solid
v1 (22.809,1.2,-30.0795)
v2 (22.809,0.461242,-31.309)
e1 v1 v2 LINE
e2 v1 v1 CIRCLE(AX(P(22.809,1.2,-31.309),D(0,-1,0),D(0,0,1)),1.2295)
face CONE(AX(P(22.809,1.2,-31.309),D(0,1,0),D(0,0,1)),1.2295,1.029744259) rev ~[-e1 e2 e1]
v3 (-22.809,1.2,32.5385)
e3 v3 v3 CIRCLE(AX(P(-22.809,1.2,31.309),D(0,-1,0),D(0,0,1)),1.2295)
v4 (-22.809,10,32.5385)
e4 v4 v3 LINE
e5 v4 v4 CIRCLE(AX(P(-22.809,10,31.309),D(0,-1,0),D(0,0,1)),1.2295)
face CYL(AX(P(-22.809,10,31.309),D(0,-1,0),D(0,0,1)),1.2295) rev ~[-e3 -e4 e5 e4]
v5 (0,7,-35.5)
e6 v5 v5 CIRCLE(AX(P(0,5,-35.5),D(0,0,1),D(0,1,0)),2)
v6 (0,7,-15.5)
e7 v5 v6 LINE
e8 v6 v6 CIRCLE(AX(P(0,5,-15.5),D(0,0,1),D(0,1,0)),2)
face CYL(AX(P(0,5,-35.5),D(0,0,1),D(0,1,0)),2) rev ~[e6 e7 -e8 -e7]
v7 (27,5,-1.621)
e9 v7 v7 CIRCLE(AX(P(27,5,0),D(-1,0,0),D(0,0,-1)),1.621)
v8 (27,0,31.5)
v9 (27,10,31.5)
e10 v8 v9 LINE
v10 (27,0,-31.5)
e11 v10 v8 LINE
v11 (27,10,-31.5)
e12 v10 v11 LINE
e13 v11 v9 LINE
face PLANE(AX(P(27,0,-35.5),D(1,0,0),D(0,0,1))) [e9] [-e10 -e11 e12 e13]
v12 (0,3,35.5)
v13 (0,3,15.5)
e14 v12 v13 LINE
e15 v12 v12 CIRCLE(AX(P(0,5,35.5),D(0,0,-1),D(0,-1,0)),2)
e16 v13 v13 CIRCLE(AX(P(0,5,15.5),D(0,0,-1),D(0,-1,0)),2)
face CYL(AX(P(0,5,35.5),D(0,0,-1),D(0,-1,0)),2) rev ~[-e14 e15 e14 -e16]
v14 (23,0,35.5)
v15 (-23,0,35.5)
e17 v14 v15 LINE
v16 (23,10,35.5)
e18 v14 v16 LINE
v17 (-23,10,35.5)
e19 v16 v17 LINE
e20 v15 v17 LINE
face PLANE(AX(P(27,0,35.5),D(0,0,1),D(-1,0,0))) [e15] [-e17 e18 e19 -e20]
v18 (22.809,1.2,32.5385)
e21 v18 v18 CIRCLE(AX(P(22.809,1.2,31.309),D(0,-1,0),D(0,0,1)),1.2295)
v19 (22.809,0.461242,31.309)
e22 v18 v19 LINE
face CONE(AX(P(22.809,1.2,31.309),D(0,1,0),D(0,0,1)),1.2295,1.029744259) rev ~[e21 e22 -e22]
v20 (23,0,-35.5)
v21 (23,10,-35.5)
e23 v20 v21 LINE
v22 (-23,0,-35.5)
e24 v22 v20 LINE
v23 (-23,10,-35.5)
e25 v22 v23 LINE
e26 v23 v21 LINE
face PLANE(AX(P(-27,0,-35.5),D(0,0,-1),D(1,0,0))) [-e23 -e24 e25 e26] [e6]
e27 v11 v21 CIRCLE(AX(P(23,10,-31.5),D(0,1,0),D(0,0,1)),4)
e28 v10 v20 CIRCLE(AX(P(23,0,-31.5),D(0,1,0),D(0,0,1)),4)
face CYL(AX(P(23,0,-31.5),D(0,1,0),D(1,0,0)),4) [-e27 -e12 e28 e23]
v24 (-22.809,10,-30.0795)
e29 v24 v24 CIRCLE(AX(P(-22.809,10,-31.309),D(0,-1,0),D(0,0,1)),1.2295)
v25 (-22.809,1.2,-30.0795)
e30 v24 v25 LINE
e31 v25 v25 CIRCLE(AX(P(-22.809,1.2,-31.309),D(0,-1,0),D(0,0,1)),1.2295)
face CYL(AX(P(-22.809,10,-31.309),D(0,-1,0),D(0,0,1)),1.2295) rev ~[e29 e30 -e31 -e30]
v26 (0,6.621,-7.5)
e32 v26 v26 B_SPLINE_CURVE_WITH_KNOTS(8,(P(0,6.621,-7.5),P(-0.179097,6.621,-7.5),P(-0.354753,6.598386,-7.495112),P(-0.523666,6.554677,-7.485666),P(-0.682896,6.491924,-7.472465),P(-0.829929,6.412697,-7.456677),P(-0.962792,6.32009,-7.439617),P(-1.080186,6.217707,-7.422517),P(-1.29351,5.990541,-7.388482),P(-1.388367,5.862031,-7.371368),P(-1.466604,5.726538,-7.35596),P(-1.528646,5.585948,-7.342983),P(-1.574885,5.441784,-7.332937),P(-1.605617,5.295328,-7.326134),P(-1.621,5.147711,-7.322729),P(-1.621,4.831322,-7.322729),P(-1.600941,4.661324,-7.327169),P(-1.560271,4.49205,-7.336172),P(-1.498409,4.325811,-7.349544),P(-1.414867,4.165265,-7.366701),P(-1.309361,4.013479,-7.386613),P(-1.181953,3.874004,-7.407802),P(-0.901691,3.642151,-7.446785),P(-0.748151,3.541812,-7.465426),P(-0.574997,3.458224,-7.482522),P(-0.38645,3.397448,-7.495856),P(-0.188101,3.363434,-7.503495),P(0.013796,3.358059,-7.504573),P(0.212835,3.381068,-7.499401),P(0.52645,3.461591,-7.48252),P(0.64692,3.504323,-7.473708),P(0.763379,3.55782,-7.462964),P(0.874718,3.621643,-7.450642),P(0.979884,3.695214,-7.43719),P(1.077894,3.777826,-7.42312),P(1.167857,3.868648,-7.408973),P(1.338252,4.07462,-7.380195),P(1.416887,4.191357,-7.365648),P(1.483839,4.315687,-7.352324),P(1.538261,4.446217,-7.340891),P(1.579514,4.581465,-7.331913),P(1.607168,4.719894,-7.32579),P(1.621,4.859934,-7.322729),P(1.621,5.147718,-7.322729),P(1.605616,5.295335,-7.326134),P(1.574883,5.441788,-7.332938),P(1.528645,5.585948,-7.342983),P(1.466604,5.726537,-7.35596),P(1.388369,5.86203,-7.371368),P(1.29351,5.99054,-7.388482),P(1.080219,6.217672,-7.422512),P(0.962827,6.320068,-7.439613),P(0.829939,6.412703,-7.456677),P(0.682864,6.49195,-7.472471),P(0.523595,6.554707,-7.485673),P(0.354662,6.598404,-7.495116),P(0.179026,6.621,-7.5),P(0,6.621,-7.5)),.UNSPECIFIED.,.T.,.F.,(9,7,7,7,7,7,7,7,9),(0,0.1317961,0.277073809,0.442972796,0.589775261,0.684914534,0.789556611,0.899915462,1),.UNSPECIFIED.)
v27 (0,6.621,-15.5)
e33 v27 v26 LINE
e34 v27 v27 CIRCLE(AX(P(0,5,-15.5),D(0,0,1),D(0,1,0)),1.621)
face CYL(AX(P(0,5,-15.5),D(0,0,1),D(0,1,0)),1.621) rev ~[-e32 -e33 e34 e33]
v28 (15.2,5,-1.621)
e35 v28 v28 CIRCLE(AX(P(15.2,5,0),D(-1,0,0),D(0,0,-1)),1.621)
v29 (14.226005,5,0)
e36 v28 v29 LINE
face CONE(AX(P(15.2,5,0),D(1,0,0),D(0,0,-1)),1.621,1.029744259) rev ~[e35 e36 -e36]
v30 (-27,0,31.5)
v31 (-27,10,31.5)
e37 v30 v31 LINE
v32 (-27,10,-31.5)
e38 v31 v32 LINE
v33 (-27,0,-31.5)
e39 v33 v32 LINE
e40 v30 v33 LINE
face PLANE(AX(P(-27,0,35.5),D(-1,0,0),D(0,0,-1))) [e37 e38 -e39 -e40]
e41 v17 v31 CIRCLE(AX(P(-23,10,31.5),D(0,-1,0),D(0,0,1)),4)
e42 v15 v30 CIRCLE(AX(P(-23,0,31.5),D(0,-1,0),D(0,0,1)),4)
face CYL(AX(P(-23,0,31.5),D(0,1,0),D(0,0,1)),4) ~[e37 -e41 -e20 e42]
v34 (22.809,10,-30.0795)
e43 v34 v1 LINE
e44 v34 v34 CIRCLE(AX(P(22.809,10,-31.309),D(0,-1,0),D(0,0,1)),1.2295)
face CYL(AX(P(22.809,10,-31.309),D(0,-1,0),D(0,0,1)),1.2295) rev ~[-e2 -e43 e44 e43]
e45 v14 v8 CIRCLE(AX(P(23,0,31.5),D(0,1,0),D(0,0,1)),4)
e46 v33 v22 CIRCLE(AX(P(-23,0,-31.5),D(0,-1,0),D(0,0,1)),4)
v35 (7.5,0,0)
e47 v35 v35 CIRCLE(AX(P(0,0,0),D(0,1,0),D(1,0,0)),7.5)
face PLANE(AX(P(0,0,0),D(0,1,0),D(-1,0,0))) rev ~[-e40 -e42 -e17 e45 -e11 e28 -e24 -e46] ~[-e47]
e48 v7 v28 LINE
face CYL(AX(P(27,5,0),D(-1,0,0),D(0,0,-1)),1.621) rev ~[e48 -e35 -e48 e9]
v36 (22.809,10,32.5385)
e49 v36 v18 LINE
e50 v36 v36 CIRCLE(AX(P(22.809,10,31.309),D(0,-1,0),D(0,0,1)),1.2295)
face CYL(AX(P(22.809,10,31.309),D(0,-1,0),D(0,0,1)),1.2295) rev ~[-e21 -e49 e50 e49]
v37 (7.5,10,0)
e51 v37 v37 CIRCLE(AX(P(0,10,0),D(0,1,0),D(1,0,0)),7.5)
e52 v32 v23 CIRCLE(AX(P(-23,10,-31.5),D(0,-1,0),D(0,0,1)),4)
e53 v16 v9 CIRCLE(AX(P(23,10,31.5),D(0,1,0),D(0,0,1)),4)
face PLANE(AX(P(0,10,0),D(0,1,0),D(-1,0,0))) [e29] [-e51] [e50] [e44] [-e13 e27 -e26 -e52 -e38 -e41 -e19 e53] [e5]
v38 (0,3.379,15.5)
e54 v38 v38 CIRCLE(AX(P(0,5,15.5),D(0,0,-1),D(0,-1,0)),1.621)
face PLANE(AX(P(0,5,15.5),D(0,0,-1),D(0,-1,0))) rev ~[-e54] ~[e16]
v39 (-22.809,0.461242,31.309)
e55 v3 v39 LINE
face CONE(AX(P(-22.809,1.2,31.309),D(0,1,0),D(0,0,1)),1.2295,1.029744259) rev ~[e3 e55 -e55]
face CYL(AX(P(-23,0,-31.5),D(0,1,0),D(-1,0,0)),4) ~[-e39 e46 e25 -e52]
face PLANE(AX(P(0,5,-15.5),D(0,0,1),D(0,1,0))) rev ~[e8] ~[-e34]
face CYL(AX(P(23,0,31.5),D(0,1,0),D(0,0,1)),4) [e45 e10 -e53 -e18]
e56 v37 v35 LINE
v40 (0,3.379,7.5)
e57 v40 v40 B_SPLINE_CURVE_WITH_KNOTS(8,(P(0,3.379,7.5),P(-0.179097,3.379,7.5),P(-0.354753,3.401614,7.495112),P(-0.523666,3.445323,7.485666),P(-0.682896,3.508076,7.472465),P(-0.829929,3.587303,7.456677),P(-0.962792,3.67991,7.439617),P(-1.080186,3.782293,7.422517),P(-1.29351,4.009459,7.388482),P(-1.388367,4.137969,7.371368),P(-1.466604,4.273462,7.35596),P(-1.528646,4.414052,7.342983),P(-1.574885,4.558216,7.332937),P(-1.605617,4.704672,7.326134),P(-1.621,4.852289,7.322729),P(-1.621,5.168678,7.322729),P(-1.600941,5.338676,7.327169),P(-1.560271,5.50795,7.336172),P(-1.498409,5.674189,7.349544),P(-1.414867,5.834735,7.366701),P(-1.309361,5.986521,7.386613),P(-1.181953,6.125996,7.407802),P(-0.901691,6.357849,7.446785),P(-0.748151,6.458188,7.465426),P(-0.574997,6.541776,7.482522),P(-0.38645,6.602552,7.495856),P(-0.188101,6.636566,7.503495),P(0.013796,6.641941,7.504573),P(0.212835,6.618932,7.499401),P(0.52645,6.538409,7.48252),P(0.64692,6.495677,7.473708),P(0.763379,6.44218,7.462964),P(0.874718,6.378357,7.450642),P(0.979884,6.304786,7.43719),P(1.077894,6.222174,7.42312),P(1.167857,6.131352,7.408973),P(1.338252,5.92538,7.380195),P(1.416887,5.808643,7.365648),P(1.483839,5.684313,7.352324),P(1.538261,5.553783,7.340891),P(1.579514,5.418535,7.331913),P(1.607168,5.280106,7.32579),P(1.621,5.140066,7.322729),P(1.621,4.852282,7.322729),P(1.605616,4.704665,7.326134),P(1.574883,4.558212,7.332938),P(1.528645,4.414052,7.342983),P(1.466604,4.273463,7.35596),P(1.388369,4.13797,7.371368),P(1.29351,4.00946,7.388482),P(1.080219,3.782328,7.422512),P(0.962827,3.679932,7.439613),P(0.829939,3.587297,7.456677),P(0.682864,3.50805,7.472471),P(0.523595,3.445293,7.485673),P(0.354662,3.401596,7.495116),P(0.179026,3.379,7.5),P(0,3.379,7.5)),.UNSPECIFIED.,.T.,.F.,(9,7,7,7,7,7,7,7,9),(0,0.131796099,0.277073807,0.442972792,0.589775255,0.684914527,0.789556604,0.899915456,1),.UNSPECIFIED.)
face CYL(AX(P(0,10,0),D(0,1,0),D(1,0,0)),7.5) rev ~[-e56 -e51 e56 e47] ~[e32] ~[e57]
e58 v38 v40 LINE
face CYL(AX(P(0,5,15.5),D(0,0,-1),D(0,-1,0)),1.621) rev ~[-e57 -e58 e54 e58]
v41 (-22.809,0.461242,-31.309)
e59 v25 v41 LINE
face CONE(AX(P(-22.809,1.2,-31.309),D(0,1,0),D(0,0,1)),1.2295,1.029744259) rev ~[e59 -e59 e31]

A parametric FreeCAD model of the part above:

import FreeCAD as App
import Part
import Sketcher
Q = App.Units.Quantity


def edges_at(feature, points):
    """Names of the edges that pass closest to the given points."""
    edges = feature.Shape.Edges
    near = lambda p: min(range(len(edges)), key=lambda i: edges[i].distToShape(Part.Vertex(*p))[0])
    return sorted({f"Edge{near(p) + 1}" for p in points})


def add_polygon(sketch, points):
    """Adds a closed chain of lines whose ends are joined by coincident constraints."""
    first, n = sketch.GeometryCount, len(points)
    for a, b in zip(points, points[1:] + points[:1]):
        sketch.addGeometry(Part.LineSegment(App.Vector(*a, 0), App.Vector(*b, 0)), False)
    for i in range(n):
        sketch.addConstraint(Sketcher.Constraint("Coincident", first + i, 2, first + (i + 1) % n, 1))

doc = App.newDocument("Part")
body = doc.addObject("PartDesign::Body", "Body")

sketch1 = body.newObject("Sketcher::SketchObject", "Sketch")
sketch1.AttachmentSupport = (doc.getObject("XZ_Plane"), [""])
sketch1.MapMode = "FlatFace"
add_polygon(sketch1, [(-27, 35.5), (27, 35.5), (27, -35.5), (-27, -35.5)])
sketch1.addConstraint([
    Sketcher.Constraint("Horizontal", 0),
    Sketcher.Constraint("Vertical", 1),
    Sketcher.Constraint("Horizontal", 2),
    Sketcher.Constraint("Vertical", 3),
    Sketcher.Constraint("Symmetric", 0, 2, 2, 2, -1, 1),
    Sketcher.Constraint("DistanceX", 0, 1, 0, 2, Q("54 mm")),
    Sketcher.Constraint("DistanceY", 1, 2, 1, 1, Q("71 mm")),
])
pad1 = body.newObject("PartDesign::Pad", "Pad")
pad1.Profile = sketch1
pad1.Length = 10
pad1.Reversed = True

sketch2 = body.newObject("Sketcher::SketchObject", "Sketch001")
sketch2.AttachmentSupport = (doc.getObject("XZ_Plane"), [""])
sketch2.MapMode = "FlatFace"
sketch2.AttachmentOffset = App.Placement(App.Vector(0, 0, -10), App.Rotation())
sketch2.addGeometry(Part.Circle(App.Vector(0, 0, 0), App.Vector(0, 0, 1), 7.5), False)
sketch2.addConstraint([
    Sketcher.Constraint("Coincident", 0, 3, -1, 1),
    Sketcher.Constraint("Diameter", 0, Q("15 mm")),
])
pocket1 = body.newObject("PartDesign::Pocket", "Pocket")
pocket1.Profile = sketch2
pocket1.Length = 10
pocket1.Reversed = True

sketch3 = body.newObject("Sketcher::SketchObject", "Sketch002")
sketch3.AttachmentSupport = (doc.getObject("YZ_Plane"), [""])
sketch3.MapMode = "FlatFace"
sketch3.AttachmentOffset = App.Placement(App.Vector(0, 0, 27), App.Rotation())
sketch3.addGeometry(Part.Circle(App.Vector(5, 0, 0), App.Vector(0, 0, 1), 1.621), False)
sketch3.addConstraint([
    Sketcher.Constraint("PointOnObject", 0, 3, -1),
    Sketcher.Constraint("Diameter", 0, Q("3.242 mm")),
    Sketcher.Constraint("DistanceX", -1, 1, 0, 3, Q("5 mm")),
])
doc.recompute()
hole = body.newObject("PartDesign::Hole", "Hole")
hole.Profile = sketch3
hole.ThreadType = "None"
hole.Diameter = 3.242
hole.DepthType = "Dimension"
hole.Depth = 11.8
hole.DrillPoint = "Angled"
hole.DrillPointAngle = 118

sketch4 = body.newObject("Sketcher::SketchObject", "Sketch003")
sketch4.AttachmentSupport = (doc.getObject("XZ_Plane"), [""])
sketch4.MapMode = "FlatFace"
sketch4.AttachmentOffset = App.Placement(App.Vector(0, 0, -10), App.Rotation())
sketch4.addGeometry([
    Part.Circle(App.Vector(-22.809, 31.309, 0), App.Vector(0, 0, 1), 1.2295),
    Part.Circle(App.Vector(-22.809, -31.309, 0), App.Vector(0, 0, 1), 1.2295),
    Part.Circle(App.Vector(22.809, -31.309, 0), App.Vector(0, 0, 1), 1.2295),
    Part.Circle(App.Vector(22.809, 31.309, 0), App.Vector(0, 0, 1), 1.2295),
], False)
sketch4.addConstraint([
    Sketcher.Constraint("Equal", 0, 1),
    Sketcher.Constraint("Equal", 1, 2),
    Sketcher.Constraint("Equal", 2, 3),
    Sketcher.Constraint("Symmetric", 0, 3, 2, 3, -1, 1),
    Sketcher.Constraint("Symmetric", 1, 3, 3, 3, -1, 1),
    Sketcher.Constraint("Symmetric", 1, 3, 2, 3, -2),
    Sketcher.Constraint("Diameter", 0, Q("2.459 mm")),
    Sketcher.Constraint("DistanceX", 0, 3, -1, 1, Q("22.809 mm")),
    Sketcher.Constraint("DistanceY", -1, 1, 0, 3, Q("31.309 mm")),
])
doc.recompute()
hole2 = body.newObject("PartDesign::Hole", "Hole001")
hole2.Profile = sketch4
hole2.ThreadType = "None"
hole2.Diameter = 2.459
hole2.DepthType = "Dimension"
hole2.Depth = 8.8
hole2.DrillPoint = "Angled"
hole2.DrillPointAngle = 118
hole2.Reversed = True
doc.recompute()

fillet = body.newObject("PartDesign::Fillet", "Fillet")
fillet.Base = (hole2, edges_at(hole2, [
    (-27, 5, -35.5),
    (-27, 5, 35.5),
    (27, 5, -35.5),
    (27, 5, 35.5),
]))
fillet.Radius = 4

sketch5 = body.newObject("Sketcher::SketchObject", "Sketch004")
sketch5.AttachmentSupport = (doc.getObject("XY_Plane"), [""])
sketch5.MapMode = "FlatFace"
sketch5.AttachmentOffset = App.Placement(App.Vector(0, 0, 35.5), App.Rotation())
sketch5.addGeometry(Part.Circle(App.Vector(0, 5, 0), App.Vector(0, 0, 1), 2), False)
sketch5.addConstraint([
    Sketcher.Constraint("PointOnObject", 0, 3, -2),
    Sketcher.Constraint("Diameter", 0, Q("4 mm")),
    Sketcher.Constraint("DistanceY", -1, 1, 0, 3, Q("5 mm")),
])
doc.recompute()
hole3 = body.newObject("PartDesign::Hole", "Hole002")
hole3.Profile = sketch5
hole3.ThreadType = "None"
hole3.Diameter = 4
hole3.DepthType = "Dimension"
hole3.Depth = 20
hole3.DrillPoint = "Flat"

sketch6 = body.newObject("Sketcher::SketchObject", "Sketch005")
sketch6.AttachmentSupport = (doc.getObject("XY_Plane"), [""])
sketch6.MapMode = "FlatFace"
sketch6.AttachmentOffset = App.Placement(App.Vector(0, 0, -35.5), App.Rotation())
sketch6.addGeometry(Part.Circle(App.Vector(0, 5, 0), App.Vector(0, 0, 1), 2), False)
sketch6.addConstraint([
    Sketcher.Constraint("PointOnObject", 0, 3, -2),
    Sketcher.Constraint("Diameter", 0, Q("4 mm")),
    Sketcher.Constraint("DistanceY", -1, 1, 0, 3, Q("5 mm")),
])
doc.recompute()
hole4 = body.newObject("PartDesign::Hole", "Hole003")
hole4.Profile = sketch6
hole4.ThreadType = "None"
hole4.Diameter = 4
hole4.DepthType = "Dimension"
hole4.Depth = 20
hole4.DrillPoint = "Flat"
hole4.Reversed = True

sketch7 = body.newObject("Sketcher::SketchObject", "Sketch006")
sketch7.AttachmentSupport = (doc.getObject("XY_Plane"), [""])
sketch7.MapMode = "FlatFace"
sketch7.AttachmentOffset = App.Placement(App.Vector(0, 0, -15.5), App.Rotation())
sketch7.addGeometry(Part.Circle(App.Vector(0, 5, 0), App.Vector(0, 0, 1), 1.621), False)
sketch7.addConstraint([
    Sketcher.Constraint("PointOnObject", 0, 3, -2),
    Sketcher.Constraint("Diameter", 0, Q("3.242 mm")),
    Sketcher.Constraint("DistanceY", -1, 1, 0, 3, Q("5 mm")),
])
doc.recompute()
hole5 = body.newObject("PartDesign::Hole", "Hole004")
hole5.Profile = sketch7
hole5.ThreadType = "None"
hole5.Diameter = 3.242
hole5.DepthType = "Dimension"
hole5.Depth = 11.8
hole5.DrillPoint = "Flat"
hole5.Reversed = True

sketch8 = body.newObject("Sketcher::SketchObject", "Sketch007")
sketch8.AttachmentSupport = (doc.getObject("XY_Plane"), [""])
sketch8.MapMode = "FlatFace"
sketch8.AttachmentOffset = App.Placement(App.Vector(0, 0, 15.5), App.Rotation())
sketch8.addGeometry(Part.Circle(App.Vector(0, 5, 0), App.Vector(0, 0, 1), 1.621), False)
sketch8.addConstraint([
    Sketcher.Constraint("PointOnObject", 0, 3, -2),
    Sketcher.Constraint("Diameter", 0, Q("3.242 mm")),
    Sketcher.Constraint("DistanceY", -1, 1, 0, 3, Q("5 mm")),
])
doc.recompute()
hole6 = body.newObject("PartDesign::Hole", "Hole005")
hole6.Profile = sketch8
hole6.ThreadType = "None"
hole6.Diameter = 3.242
hole6.DepthType = "Dimension"
hole6.Depth = 11.8
hole6.DrillPoint = "Flat"

doc.recompute()
